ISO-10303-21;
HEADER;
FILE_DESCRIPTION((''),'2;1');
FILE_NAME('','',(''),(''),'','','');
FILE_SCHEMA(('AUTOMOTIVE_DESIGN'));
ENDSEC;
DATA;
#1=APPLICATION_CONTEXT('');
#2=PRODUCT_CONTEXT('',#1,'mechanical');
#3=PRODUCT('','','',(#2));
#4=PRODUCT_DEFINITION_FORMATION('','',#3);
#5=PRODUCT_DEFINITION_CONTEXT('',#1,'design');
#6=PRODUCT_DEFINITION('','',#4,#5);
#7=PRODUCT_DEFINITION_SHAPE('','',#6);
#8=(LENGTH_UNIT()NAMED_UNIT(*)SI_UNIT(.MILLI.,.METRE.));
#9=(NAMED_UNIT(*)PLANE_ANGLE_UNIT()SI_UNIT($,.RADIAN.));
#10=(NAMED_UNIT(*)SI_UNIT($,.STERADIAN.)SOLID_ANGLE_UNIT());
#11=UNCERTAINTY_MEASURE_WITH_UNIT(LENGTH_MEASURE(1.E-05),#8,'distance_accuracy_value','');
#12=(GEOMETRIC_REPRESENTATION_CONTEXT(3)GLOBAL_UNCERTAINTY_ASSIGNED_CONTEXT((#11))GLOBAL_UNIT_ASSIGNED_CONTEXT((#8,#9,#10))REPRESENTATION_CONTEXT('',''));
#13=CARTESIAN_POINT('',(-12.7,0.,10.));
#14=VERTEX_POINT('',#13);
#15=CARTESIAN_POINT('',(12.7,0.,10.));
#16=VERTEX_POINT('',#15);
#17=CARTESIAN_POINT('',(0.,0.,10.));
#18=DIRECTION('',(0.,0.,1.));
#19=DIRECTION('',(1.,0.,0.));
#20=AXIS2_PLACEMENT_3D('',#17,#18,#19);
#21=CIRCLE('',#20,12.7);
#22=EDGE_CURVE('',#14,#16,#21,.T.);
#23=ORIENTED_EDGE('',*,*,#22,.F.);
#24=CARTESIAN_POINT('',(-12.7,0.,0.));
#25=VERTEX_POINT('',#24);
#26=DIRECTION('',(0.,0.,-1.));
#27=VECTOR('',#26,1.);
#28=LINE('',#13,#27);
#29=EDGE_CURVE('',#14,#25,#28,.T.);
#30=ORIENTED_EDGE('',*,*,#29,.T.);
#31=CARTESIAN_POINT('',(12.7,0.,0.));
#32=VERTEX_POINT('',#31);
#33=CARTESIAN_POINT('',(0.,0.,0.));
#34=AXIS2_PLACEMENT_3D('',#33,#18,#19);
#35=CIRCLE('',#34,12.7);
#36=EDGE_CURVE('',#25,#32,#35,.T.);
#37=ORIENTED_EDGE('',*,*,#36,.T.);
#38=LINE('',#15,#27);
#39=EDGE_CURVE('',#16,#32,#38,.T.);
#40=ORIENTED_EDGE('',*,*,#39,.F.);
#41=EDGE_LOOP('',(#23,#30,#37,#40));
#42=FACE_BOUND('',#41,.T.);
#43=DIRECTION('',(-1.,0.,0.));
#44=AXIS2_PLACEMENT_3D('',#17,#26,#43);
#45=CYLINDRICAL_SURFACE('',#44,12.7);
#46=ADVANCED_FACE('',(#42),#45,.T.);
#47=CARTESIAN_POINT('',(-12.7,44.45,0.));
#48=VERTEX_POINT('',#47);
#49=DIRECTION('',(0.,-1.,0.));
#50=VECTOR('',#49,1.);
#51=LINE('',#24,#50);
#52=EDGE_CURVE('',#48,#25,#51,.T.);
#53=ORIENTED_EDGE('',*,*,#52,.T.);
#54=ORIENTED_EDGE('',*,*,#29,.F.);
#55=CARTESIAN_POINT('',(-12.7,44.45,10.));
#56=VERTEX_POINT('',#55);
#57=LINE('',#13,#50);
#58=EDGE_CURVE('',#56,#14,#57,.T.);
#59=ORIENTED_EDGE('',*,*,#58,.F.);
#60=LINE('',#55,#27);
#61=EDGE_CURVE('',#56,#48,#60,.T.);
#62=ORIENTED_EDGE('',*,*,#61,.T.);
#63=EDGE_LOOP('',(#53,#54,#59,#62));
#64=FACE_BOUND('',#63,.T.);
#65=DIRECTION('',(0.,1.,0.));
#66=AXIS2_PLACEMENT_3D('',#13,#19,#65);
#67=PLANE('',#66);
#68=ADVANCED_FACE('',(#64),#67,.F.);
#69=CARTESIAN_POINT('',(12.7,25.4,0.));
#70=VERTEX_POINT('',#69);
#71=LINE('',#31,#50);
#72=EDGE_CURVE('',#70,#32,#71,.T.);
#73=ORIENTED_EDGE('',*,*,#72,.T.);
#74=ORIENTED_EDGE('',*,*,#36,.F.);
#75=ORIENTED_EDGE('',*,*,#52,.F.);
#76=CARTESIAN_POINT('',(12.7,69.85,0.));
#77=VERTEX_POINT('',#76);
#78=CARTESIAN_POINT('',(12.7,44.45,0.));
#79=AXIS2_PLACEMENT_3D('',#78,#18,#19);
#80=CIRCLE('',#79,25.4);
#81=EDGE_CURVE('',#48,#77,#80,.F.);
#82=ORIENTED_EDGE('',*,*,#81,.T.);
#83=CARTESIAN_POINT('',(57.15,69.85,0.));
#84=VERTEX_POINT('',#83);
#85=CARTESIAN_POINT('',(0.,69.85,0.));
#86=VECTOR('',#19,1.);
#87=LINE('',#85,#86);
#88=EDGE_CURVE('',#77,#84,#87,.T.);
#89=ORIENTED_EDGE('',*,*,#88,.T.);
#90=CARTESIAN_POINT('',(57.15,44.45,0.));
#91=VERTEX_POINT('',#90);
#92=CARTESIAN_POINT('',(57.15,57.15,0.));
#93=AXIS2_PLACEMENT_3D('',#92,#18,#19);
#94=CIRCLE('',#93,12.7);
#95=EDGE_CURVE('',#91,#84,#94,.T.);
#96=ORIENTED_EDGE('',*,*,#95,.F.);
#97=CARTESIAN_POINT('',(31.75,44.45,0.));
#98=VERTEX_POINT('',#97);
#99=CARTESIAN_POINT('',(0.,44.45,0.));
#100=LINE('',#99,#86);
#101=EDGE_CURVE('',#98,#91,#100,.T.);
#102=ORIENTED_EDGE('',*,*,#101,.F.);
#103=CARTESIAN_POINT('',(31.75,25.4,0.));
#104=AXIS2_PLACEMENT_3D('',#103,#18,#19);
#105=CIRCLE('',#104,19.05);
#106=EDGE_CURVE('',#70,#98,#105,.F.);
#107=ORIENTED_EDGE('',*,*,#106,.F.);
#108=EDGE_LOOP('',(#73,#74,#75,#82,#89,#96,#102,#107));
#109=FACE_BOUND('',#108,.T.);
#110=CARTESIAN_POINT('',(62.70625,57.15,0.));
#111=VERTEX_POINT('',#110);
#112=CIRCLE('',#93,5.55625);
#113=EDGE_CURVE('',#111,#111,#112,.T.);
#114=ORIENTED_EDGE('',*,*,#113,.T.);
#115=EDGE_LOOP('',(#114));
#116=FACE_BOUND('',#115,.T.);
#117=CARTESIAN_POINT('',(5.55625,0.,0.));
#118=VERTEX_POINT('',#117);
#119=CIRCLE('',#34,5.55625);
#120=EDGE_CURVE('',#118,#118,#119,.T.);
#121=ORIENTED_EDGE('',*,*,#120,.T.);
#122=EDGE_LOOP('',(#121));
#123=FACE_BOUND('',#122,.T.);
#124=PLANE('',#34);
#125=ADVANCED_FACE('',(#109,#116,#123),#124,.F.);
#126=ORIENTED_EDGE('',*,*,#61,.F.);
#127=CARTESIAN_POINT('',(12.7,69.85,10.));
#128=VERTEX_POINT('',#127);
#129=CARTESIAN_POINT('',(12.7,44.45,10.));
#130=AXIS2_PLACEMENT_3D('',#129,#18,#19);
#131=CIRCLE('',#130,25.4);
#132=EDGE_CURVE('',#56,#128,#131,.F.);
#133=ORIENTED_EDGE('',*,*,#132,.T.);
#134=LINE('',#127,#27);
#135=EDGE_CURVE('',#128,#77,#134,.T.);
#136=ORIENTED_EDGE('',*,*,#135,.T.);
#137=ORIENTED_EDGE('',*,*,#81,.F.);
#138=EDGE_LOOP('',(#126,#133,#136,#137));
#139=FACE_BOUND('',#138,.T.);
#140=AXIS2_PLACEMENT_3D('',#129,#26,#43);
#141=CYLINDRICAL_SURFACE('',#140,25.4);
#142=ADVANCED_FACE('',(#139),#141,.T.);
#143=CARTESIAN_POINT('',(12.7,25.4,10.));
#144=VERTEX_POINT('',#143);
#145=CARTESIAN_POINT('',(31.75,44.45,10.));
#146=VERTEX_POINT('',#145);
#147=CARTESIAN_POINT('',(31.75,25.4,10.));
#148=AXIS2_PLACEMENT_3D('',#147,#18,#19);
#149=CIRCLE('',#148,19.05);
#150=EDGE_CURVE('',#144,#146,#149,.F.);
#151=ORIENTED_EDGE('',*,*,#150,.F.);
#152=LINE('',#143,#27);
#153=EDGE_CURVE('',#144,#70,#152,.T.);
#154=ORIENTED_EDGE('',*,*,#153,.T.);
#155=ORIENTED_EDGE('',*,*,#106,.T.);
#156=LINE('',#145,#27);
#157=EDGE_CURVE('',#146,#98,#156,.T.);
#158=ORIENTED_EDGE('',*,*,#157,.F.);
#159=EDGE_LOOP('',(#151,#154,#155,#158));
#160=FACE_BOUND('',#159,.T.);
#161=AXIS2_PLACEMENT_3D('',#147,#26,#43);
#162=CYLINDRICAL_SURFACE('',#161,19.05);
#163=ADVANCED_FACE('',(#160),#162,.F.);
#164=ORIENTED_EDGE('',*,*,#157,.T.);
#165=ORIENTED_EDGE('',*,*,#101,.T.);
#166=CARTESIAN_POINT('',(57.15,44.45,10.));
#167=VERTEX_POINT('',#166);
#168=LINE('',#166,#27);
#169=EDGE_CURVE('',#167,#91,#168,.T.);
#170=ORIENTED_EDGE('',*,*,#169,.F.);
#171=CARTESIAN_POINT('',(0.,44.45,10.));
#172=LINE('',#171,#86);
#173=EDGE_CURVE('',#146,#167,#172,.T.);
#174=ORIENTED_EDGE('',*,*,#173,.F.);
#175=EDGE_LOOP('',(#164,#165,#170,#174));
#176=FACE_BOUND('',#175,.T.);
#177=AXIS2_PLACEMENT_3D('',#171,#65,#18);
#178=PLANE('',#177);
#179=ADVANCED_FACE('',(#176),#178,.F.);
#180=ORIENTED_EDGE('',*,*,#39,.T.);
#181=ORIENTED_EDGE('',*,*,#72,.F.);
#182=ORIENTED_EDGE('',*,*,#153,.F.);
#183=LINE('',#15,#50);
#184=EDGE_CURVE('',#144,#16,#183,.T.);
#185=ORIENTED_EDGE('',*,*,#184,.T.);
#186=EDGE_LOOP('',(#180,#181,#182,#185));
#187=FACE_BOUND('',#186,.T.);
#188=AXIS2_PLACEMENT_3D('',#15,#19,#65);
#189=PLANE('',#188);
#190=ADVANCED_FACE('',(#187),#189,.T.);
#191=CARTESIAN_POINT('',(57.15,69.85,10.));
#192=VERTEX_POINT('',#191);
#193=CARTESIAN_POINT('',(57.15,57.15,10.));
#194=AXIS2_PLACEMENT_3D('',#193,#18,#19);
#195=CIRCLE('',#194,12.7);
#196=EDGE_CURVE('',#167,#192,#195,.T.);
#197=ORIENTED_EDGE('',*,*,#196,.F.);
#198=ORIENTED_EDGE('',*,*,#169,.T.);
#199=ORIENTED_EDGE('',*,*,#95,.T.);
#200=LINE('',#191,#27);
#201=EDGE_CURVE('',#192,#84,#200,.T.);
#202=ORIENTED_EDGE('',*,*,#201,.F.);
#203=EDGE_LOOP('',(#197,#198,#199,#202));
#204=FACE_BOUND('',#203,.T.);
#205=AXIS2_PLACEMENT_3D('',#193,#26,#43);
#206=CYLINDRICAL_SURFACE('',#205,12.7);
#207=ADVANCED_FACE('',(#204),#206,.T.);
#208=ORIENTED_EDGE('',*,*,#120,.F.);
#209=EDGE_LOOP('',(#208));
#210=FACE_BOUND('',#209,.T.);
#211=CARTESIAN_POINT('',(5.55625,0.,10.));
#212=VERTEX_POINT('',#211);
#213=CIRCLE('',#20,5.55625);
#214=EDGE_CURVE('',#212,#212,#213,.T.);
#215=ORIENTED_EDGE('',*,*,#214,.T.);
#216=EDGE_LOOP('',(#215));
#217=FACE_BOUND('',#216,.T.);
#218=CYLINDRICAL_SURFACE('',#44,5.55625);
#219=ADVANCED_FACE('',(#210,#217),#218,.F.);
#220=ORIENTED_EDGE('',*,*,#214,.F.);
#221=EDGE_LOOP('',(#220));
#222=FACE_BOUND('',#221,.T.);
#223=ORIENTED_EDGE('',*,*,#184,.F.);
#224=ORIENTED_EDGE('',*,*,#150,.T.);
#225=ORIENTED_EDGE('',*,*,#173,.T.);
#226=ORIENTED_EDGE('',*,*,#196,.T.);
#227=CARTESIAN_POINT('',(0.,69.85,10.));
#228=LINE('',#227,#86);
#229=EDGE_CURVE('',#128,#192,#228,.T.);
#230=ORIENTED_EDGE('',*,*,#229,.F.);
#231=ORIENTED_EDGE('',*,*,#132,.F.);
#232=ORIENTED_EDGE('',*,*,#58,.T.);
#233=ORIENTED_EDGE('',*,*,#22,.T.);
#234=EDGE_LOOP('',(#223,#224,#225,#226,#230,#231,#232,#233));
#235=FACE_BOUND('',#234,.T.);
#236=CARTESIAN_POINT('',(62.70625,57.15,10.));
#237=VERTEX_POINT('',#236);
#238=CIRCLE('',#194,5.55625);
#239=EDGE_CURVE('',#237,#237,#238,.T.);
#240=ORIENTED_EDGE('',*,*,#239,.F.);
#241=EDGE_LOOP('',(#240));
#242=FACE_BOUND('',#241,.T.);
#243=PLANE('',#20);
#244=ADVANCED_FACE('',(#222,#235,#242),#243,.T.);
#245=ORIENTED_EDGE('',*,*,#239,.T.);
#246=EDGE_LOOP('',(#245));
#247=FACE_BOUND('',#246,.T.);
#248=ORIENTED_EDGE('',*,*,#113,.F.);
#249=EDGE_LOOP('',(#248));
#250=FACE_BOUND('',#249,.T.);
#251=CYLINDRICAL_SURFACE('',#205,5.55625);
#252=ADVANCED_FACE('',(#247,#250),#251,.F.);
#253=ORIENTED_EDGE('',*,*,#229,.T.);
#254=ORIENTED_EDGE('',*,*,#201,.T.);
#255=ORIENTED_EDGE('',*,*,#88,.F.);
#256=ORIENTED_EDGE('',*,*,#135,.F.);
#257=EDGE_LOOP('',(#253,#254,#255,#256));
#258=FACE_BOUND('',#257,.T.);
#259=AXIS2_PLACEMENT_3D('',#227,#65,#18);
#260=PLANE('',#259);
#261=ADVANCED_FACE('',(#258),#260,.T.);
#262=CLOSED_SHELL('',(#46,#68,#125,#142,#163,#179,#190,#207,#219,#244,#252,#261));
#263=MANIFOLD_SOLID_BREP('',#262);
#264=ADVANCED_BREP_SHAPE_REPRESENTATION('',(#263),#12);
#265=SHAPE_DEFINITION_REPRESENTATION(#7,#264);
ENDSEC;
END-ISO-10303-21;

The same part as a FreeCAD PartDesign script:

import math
import FreeCAD as App
import Part
import Sketcher

V = App.Vector
Q = App.Units.Quantity

doc = App.newDocument("Part")
params = doc.addObject("Spreadsheet::Sheet", "Params")
for row, (alias, value) in enumerate([
    ("sketch1_radius", "1 in"),
    ("sketch1_width", "1 in"),
    ("sketch1_radius2", "0.75 in"),
    ("sketch1_diameter", "0.4375 in"),
    ("pad1_length", "10 mm"),
], start=1):
    params.set(f"A{row}", alias)
    params.set(f"B{row}", "=" + value)
    params.setAlias(f"B{row}", alias)

body = doc.addObject("PartDesign::Body", "Body")

# Sketch on XY plane
sketch1 = body.newObject("Sketcher::SketchObject", "Sketch")
sketch1.AttachmentSupport = (doc.getObject("XY_Plane"), [""])
sketch1.MapMode = "FlatFace"
sketch1.addGeometry(Part.ArcOfCircle(Part.Circle(V(13, 44, 0), V(0, 0, 1), 25), math.radians(90), math.radians(180)), False)
sketch1.addGeometry(Part.LineSegment(V(-13, 44, 0), V(-13, 0, 0)), False)
sketch1.addGeometry(Part.ArcOfCircle(Part.Circle(V(0, 0, 0), V(0, 0, 1), 13), math.radians(180), math.radians(360)), False)
sketch1.addGeometry(Part.LineSegment(V(13, 0, 0), V(13, 25, 0)), False)
sketch1.addGeometry(Part.ArcOfCircle(Part.Circle(V(32, 25, 0), V(0, 0, 1), 19), math.radians(90), math.radians(180)), False)
sketch1.addGeometry(Part.LineSegment(V(32, 44, 0), V(57, 44, 0)), False)
sketch1.addGeometry(Part.ArcOfCircle(Part.Circle(V(57, 57, 0), V(0, 0, 1), 13), math.radians(-90), math.radians(90)), False)
sketch1.addGeometry(Part.LineSegment(V(57, 70, 0), V(13, 70, 0)), False)
sketch1.addGeometry(Part.Circle(V(0, 0, 0), V(0, 0, 1), 6), False)
sketch1.addGeometry(Part.Circle(V(57, 57, 0), V(0, 0, 1), 6), False)
sketch1.addConstraint(Sketcher.Constraint("Tangent", 0, 2, 1, 1))
sketch1.addConstraint(Sketcher.Constraint("Tangent", 1, 2, 2, 1))
sketch1.addConstraint(Sketcher.Constraint("Tangent", 2, 2, 3, 1))
sketch1.addConstraint(Sketcher.Constraint("Tangent", 3, 2, 4, 2))
sketch1.addConstraint(Sketcher.Constraint("Tangent", 4, 1, 5, 1))
sketch1.addConstraint(Sketcher.Constraint("Tangent", 5, 2, 6, 1))
sketch1.addConstraint(Sketcher.Constraint("Tangent", 6, 2, 7, 1))
sketch1.addConstraint(Sketcher.Constraint("Tangent", 7, 2, 0, 1))
sketch1.addConstraint(Sketcher.Constraint("Vertical", 1))
sketch1.addConstraint(Sketcher.Constraint("Vertical", 3))
sketch1.addConstraint(Sketcher.Constraint("Horizontal", 5))
sketch1.addConstraint(Sketcher.Constraint("Horizontal", 7))
sketch1.addConstraint(Sketcher.Constraint("Coincident", 2, 3, -1, 1))
sketch1.addConstraint(Sketcher.Constraint("Coincident", 8, 3, -1, 1))
sketch1.addConstraint(Sketcher.Constraint("Coincident", 9, 3, 6, 3))
sketch1.addConstraint(Sketcher.Constraint("Equal", 2, 6))
sketch1.addConstraint(Sketcher.Constraint("Equal", 8, 9))
sketch1.addConstraint(Sketcher.Constraint("Horizontal", 0, 2, 4, 1))
sketch1.addConstraint(Sketcher.Constraint("Equal", 7, 1))
sketch1.addConstraint(Sketcher.Constraint("Radius", 0, Q("1 in")))
sketch1.addConstraint(Sketcher.Constraint("DistanceX", 5, 1, 5, 2, Q("1 in")))
sketch1.addConstraint(Sketcher.Constraint("Radius", 4, Q("0.75 in")))
sketch1.addConstraint(Sketcher.Constraint("Diameter", 8, Q("0.4375 in")))
sketch1.setExpression("Constraints[19]", "Params.sketch1_radius")
sketch1.setExpression("Constraints[20]", "Params.sketch1_width")
sketch1.setExpression("Constraints[21]", "Params.sketch1_radius2")
sketch1.setExpression("Constraints[22]", "Params.sketch1_diameter")
pad1 = body.newObject("PartDesign::Pad", "Pad")
pad1.Profile = sketch1
pad1.setExpression("Length", "Params.pad1_length")

doc.recompute()
